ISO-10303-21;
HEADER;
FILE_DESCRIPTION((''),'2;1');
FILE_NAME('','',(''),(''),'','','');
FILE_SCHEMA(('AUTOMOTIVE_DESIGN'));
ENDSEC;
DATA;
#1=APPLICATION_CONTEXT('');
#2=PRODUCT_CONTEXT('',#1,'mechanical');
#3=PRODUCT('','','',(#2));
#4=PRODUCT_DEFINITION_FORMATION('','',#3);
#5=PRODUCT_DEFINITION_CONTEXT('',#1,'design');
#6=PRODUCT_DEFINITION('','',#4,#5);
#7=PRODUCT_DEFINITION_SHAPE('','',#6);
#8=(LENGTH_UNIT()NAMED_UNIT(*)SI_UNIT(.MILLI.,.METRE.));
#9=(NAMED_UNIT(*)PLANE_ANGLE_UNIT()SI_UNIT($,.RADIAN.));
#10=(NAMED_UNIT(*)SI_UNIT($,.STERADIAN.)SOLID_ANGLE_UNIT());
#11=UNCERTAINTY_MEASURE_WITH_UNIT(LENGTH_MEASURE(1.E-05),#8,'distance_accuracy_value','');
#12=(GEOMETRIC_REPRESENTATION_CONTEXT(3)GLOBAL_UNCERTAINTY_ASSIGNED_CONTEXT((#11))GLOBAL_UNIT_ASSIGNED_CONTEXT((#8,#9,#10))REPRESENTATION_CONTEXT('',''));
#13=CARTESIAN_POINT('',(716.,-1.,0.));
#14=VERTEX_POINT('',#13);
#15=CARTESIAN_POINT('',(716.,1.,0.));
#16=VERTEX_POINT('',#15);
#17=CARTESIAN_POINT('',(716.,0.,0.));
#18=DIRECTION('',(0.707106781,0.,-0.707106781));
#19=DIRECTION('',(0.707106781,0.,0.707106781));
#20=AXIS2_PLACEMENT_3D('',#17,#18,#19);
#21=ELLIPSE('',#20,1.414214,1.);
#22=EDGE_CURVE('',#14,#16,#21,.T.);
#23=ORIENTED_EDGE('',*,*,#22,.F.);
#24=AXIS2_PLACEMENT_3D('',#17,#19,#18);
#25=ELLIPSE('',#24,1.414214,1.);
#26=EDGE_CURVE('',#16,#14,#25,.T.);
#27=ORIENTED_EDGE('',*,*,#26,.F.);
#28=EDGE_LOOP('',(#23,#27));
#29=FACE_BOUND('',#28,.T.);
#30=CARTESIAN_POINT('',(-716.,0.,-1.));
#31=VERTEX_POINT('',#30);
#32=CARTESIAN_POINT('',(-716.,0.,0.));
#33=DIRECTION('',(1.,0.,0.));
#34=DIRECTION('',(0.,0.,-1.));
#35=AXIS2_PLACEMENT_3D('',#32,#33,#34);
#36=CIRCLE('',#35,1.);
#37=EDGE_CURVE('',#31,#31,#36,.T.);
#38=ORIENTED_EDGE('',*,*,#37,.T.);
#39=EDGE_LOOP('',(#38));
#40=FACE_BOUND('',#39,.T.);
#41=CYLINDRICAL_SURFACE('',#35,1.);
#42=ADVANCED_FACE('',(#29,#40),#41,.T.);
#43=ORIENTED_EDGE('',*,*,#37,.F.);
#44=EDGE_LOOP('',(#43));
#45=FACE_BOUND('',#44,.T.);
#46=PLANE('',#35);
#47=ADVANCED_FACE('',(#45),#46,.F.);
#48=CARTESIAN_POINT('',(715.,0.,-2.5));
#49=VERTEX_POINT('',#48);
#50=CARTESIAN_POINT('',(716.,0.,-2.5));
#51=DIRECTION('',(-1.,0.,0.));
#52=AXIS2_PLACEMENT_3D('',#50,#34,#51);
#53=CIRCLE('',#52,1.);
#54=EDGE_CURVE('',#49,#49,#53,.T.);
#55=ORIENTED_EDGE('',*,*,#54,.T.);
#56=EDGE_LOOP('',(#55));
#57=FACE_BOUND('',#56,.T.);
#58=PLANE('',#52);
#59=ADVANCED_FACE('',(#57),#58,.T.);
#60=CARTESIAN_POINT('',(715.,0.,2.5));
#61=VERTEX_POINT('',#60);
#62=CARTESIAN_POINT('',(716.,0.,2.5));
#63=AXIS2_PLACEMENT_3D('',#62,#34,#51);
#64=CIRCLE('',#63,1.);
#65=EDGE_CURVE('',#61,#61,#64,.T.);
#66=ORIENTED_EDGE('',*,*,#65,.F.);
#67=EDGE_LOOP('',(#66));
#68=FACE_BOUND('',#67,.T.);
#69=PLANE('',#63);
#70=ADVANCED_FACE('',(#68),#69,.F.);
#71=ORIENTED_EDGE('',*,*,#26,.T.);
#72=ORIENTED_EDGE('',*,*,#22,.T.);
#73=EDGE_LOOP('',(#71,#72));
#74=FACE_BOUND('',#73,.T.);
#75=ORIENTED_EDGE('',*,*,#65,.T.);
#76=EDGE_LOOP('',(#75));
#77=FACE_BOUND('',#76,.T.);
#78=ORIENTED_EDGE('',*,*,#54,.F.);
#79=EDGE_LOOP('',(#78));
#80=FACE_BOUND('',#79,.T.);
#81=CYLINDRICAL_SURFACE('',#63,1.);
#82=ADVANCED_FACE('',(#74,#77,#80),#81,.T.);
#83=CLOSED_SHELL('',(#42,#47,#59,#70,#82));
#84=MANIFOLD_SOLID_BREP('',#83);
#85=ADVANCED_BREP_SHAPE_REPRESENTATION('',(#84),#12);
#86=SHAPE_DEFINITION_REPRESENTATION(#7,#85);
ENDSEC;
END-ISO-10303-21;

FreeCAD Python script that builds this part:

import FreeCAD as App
import Part
import Sketcher

doc = App.newDocument("Part")
body = doc.addObject("PartDesign::Body", "Body")

sketch1 = doc.addObject("Sketcher::SketchObject", "Sketch")
body.addObject(sketch1)
sketch1.AttachmentSupport = (doc.YZ_Plane, [""])
sketch1.MapMode = "FlatFace"
sketch1.AttachmentOffset = App.Placement(App.Vector(0, 0, -716), App.Rotation())
sketch1.addGeometry(Part.Circle(App.Vector(0, 0, 0), App.Vector(0, 0, 1), 1), False)
sketch1.addConstraint(Sketcher.Constraint("Coincident", 0, 3, -1, 1))
sketch1.addConstraint(Sketcher.Constraint("Diameter", 0, 2.0))

sketch2 = doc.addObject("Sketcher::SketchObject", "Sketch001")
body.addObject(sketch2)
sketch2.AttachmentSupport = (doc.XY_Plane, [""])
sketch2.MapMode = "FlatFace"
sketch2.addGeometry(Part.LineSegment(App.Vector(-716, 0, 0), App.Vector(716, 0, 0)), False)
sketch2.addConstraint(Sketcher.Constraint("Horizontal", 0))
sketch2.addConstraint(Sketcher.Constraint("Symmetric", 0, 1, 0, 2, -1, 1))
sketch2.addConstraint(Sketcher.Constraint("DistanceX", 0, 1, 0, 2, 1432.0))
doc.recompute()

additivepipe = doc.addObject("PartDesign::AdditivePipe", "AdditivePipe")
body.addObject(additivepipe)
additivepipe.Profile = sketch1
additivepipe.Spine = (sketch2, ["Edge1"])

sketch3 = doc.addObject("Sketcher::SketchObject", "Sketch002")
body.addObject(sketch3)
sketch3.AttachmentSupport = (doc.XY_Plane, [""])
sketch3.MapMode = "FlatFace"
sketch3.AttachmentOffset = App.Placement(App.Vector(0, 0, 2.5), App.Rotation())
sketch3.addGeometry(Part.Circle(App.Vector(716, 0, 0), App.Vector(0, 0, 1), 1), False)
sketch3.addConstraint(Sketcher.Constraint("PointOnObject", 0, 3, -1))
sketch3.addConstraint(Sketcher.Constraint("Diameter", 0, 2.0))
sketch3.addConstraint(Sketcher.Constraint("DistanceX", -1, 1, 0, 3, 716.0))

sketch4 = doc.addObject("Sketcher::SketchObject", "Sketch003")
body.addObject(sketch4)
sketch4.AttachmentSupport = (doc.XZ_Plane, [""])
sketch4.MapMode = "FlatFace"
sketch4.addGeometry(Part.LineSegment(App.Vector(716, 2, 0), App.Vector(716, -2, 0)), False)
sketch4.addConstraint(Sketcher.Constraint("Vertical", 0))
sketch4.addConstraint(Sketcher.Constraint("DistanceY", 0, 2, 0, 1, 5.0))
sketch4.addConstraint(Sketcher.Constraint("DistanceX", -1, 1, 0, 1, 716.0))
sketch4.addConstraint(Sketcher.Constraint("DistanceY", -1, 1, 0, 1, 2.5))
doc.recompute()

additivepipe2 = doc.addObject("PartDesign::AdditivePipe", "AdditivePipe001")
body.addObject(additivepipe2)
additivepipe2.Profile = sketch3
additivepipe2.Spine = (sketch4, ["Edge1"])

doc.recompute()
